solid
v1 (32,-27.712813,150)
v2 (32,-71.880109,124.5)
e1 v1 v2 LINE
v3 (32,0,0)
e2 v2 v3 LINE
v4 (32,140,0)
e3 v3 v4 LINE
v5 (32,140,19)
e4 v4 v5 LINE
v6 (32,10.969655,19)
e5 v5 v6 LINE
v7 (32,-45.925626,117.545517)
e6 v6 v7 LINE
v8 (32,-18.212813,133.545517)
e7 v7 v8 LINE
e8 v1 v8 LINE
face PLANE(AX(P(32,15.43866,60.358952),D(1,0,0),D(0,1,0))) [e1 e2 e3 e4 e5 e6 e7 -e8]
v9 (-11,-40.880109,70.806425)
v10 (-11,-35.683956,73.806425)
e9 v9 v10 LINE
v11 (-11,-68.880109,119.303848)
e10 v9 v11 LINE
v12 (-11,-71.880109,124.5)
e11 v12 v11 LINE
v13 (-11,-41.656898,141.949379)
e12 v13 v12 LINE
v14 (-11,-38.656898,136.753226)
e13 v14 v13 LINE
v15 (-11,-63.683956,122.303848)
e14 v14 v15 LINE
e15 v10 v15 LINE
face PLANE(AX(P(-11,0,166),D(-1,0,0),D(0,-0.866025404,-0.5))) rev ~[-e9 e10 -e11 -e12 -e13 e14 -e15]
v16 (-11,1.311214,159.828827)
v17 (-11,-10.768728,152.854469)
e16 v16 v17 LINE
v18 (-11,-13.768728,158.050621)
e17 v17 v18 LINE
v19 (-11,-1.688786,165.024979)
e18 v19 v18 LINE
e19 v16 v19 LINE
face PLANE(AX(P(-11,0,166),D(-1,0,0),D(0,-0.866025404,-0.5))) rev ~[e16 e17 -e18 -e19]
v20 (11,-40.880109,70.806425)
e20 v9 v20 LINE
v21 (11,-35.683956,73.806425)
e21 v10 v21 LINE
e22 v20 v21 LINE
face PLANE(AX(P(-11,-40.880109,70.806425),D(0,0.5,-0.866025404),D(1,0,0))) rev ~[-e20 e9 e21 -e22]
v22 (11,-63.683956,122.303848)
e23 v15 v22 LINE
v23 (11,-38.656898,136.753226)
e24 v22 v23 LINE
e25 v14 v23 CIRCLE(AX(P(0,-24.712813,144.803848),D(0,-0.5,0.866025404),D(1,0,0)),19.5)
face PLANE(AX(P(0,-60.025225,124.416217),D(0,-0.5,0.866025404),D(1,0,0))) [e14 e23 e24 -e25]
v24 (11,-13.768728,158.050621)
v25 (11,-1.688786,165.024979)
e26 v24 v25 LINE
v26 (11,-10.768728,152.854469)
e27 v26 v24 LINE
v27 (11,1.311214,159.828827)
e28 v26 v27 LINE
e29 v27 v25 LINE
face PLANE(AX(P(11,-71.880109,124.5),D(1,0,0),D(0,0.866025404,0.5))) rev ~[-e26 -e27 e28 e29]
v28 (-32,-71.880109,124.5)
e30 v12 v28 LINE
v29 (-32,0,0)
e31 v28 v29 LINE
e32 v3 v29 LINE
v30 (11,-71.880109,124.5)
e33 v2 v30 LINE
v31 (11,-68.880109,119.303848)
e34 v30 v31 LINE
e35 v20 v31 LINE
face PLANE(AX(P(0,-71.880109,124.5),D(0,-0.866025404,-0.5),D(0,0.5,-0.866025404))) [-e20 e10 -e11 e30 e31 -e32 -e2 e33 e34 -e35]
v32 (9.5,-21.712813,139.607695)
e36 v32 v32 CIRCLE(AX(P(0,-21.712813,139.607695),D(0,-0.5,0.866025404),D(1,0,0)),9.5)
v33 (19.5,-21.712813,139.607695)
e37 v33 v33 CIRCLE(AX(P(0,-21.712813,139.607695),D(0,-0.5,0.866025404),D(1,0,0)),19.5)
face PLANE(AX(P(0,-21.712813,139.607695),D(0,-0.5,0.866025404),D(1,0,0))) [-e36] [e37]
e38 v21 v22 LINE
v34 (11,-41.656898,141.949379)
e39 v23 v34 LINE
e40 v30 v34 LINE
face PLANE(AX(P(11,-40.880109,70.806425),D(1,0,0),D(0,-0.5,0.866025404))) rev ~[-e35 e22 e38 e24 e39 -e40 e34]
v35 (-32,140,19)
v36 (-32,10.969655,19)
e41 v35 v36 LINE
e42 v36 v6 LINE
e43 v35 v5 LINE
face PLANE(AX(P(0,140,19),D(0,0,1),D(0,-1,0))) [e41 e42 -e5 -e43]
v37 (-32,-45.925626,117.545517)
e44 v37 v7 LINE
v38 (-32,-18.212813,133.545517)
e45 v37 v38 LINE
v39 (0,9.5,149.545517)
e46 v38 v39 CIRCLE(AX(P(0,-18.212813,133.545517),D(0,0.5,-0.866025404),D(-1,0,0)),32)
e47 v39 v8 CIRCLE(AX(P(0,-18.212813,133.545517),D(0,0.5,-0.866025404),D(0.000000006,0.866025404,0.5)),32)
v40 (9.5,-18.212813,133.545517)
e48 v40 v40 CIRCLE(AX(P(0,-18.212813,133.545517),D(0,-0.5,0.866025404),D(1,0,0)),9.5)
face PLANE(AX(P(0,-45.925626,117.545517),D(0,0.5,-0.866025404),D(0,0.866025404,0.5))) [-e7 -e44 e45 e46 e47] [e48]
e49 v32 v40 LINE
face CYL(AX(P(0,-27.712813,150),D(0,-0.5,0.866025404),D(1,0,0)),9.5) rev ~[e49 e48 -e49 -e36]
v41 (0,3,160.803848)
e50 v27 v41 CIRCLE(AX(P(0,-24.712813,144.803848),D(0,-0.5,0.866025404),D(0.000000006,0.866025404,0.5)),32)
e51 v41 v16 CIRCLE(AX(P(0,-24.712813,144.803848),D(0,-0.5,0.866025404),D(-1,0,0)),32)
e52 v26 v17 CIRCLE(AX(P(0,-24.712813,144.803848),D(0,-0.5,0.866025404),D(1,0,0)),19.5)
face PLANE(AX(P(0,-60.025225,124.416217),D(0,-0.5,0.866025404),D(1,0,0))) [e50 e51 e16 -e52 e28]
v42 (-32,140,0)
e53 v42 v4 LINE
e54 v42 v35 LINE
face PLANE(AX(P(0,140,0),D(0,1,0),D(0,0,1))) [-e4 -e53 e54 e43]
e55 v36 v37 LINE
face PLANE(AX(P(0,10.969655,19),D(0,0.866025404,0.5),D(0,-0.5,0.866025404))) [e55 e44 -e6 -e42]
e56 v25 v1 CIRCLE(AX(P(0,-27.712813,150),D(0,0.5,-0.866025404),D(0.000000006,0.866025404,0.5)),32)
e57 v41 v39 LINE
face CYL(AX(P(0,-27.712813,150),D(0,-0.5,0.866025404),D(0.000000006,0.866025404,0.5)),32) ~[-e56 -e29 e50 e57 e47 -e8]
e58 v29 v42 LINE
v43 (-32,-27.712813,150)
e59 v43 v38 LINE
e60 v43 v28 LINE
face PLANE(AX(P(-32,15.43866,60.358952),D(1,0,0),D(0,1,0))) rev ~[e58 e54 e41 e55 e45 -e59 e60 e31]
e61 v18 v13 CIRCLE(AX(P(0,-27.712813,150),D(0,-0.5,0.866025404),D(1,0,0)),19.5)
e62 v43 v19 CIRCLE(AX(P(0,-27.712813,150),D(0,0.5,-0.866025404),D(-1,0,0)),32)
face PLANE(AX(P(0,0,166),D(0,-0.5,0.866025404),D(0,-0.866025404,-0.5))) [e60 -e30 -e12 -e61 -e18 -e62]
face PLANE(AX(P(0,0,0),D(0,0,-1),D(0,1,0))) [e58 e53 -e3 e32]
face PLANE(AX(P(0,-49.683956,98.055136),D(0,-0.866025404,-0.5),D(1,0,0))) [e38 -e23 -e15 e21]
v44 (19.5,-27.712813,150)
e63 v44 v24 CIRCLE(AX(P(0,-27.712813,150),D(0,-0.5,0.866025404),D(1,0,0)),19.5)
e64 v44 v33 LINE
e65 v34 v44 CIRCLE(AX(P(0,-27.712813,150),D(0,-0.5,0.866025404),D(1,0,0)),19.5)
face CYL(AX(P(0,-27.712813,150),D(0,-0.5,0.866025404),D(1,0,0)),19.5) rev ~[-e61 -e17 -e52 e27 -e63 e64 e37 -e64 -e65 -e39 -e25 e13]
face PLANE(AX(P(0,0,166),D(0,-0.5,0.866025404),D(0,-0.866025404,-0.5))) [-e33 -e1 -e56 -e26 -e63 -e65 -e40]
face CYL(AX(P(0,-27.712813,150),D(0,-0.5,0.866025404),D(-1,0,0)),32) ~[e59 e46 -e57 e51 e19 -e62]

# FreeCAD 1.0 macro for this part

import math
import FreeCAD as App
import Part
import Sketcher
from FreeCAD import Vector
Q = App.Units.Quantity

doc = App.newDocument("Part")
body = doc.addObject("PartDesign::Body", "Body")

# Sketch on YZ plane
sketch1 = body.newObject("Sketcher::SketchObject", "Sketch")
sketch1.AttachmentSupport = (doc.getObject("YZ_Plane"), [""])
sketch1.MapMode = "FlatFace"
sketch1.addGeometry([
    Part.LineSegment(Vector(0, 0, 0), Vector(140, 0, 0)),  # 0
    Part.LineSegment(Vector(140, 0, 0), Vector(140, 19, 0)),  # 1
    Part.LineSegment(Vector(140, 19, 0), Vector(10.969655, 19, 0)),  # 2
    Part.LineSegment(Vector(10.969655, 19, 0), Vector(-45.925626, 117.545517, 0)),  # 3
    Part.LineSegment(Vector(-45.925626, 117.545517, 0), Vector(9.5, 149.545517, 0)),  # 4
    Part.LineSegment(Vector(9.5, 149.545517, 0), Vector(0, 166, 0)),  # 5
    Part.LineSegment(Vector(0, 166, 0), Vector(-71.880109, 124.5, 0)),  # 6
    Part.LineSegment(Vector(-71.880109, 124.5, 0), Vector(0, 0, 0)),  # 7
], False)
sketch1.addConstraint([
    Sketcher.Constraint("Coincident", 0, 2, 1, 1),
    Sketcher.Constraint("Coincident", 1, 2, 2, 1),
    Sketcher.Constraint("Coincident", 2, 2, 3, 1),
    Sketcher.Constraint("Coincident", 3, 2, 4, 1),
    Sketcher.Constraint("Coincident", 4, 2, 5, 1),
    Sketcher.Constraint("Coincident", 5, 2, 6, 1),
    Sketcher.Constraint("Coincident", 6, 2, 7, 1),
    Sketcher.Constraint("Coincident", 7, 2, 0, 1),
    Sketcher.Constraint("Horizontal", 0),
    Sketcher.Constraint("Vertical", 1),
    Sketcher.Constraint("Horizontal", 2),
    Sketcher.Constraint("Coincident", 7, 2, -1, 1),
    Sketcher.Constraint("PointOnObject", 5, 2, -2),
    Sketcher.Constraint("Perpendicular", 3, 4),
    Sketcher.Constraint("Perpendicular", 4, 5),
    Sketcher.Constraint("Perpendicular", 5, 6),
    Sketcher.Constraint("Perpendicular", 6, 7),
    Sketcher.Constraint("DistanceX", 0, 1, 0, 2, Q("140 mm")),
    Sketcher.Constraint("DistanceY", 1, 1, 1, 2, Q("19 mm")),
    Sketcher.Constraint("Angle", 3, Q("120 deg")),
    Sketcher.Constraint("Distance", 4, Q("64 mm")),
    Sketcher.Constraint("Distance", 5, Q("19 mm")),
    Sketcher.Constraint("Distance", 6, Q("83 mm")),
])
pad1 = body.newObject("PartDesign::Pad", "Pad")
pad1.Profile = sketch1
pad1.Length = 64
pad1.Midplane = True

# Sketch on an angled plane
sketch2 = body.newObject("Sketcher::SketchObject", "Sketch001")
sketch2.Placement = App.Placement(Vector(0, -71.880109, 124.5), App.Rotation(Vector(1, 0, 0), Vector(0, 0.866025404, 0.5), Vector(0, -0.5, 0.866025404), "ZXY"))
sketch2.addGeometry([
    Part.ArcOfCircle(Part.Circle(Vector(0, 51, 0), Vector(0, 0, 1), 32), math.radians(0), math.radians(90)),  # 0
    Part.LineSegment(Vector(32, 51, 0), Vector(32, 83, 0)),  # 1
    Part.LineSegment(Vector(32, 83, 0), Vector(0, 83, 0)),  # 2
    Part.ArcOfCircle(Part.Circle(Vector(0, 51, 0), Vector(0, 0, 1), 32), math.radians(90), math.radians(180)),  # 3
    Part.LineSegment(Vector(0, 83, 0), Vector(-32, 83, 0)),  # 4
    Part.LineSegment(Vector(-32, 83, 0), Vector(-32, 51, 0)),  # 5
    Part.Circle(Vector(0, 51, 0), Vector(0, 0, 1), 9.5),  # 6
], False)
sketch2.addConstraint([
    Sketcher.Constraint("Tangent", 0, 1, 1, 1),
    Sketcher.Constraint("Coincident", 1, 2, 2, 1),
    Sketcher.Constraint("Tangent", 2, 2, 0, 2),
    Sketcher.Constraint("Tangent", 3, 1, 4, 1),
    Sketcher.Constraint("Coincident", 4, 2, 5, 1),
    Sketcher.Constraint("Tangent", 5, 2, 3, 2),
    Sketcher.Constraint("Vertical", 1),
    Sketcher.Constraint("Horizontal", 2),
    Sketcher.Constraint("Horizontal", 4),
    Sketcher.Constraint("Vertical", 5),
    Sketcher.Constraint("Coincident", 3, 3, 0, 3),
    Sketcher.Constraint("Coincident", 6, 3, 0, 3),
    Sketcher.Constraint("Equal", 0, 3),
    Sketcher.Constraint("PointOnObject", 0, 3, -2),
    Sketcher.Constraint("Diameter", 6, Q("19 mm")),
    Sketcher.Constraint("Radius", 0, Q("32 mm")),
    Sketcher.Constraint("DistanceY", -1, 1, 0, 3, Q("51 mm")),
])
pocket1 = body.newObject("PartDesign::Pocket", "Pocket")
pocket1.Profile = sketch2
pocket1.Length = 19

# Sketch on an angled plane
sketch3 = body.newObject("Sketcher::SketchObject", "Sketch002")
sketch3.Placement = App.Placement(Vector(0, -71.880109, 124.5), App.Rotation(Vector(1, 0, 0), Vector(0, 0.866025404, 0.5), Vector(0, -0.5, 0.866025404), "ZXY"))
sketch3.addGeometry([
    Part.Circle(Vector(0, 51, 0), Vector(0, 0, 1), 19.5),
    Part.Circle(Vector(0, 51, 0), Vector(0, 0, 1), 9.5),
], False)
sketch3.addConstraint([
    Sketcher.Constraint("Coincident", 1, 3, 0, 3),
    Sketcher.Constraint("PointOnObject", 0, 3, -2),
    Sketcher.Constraint("Diameter", 0, Q("39 mm")),
    Sketcher.Constraint("Diameter", 1, Q("19 mm")),
    Sketcher.Constraint("DistanceY", -1, 1, 0, 3, Q("51 mm")),
])
pocket2 = body.newObject("PartDesign::Pocket", "Pocket001")
pocket2.Profile = sketch3
pocket2.Length = 12

# Sketch on an angled plane
sketch4 = body.newObject("Sketcher::SketchObject", "Sketch003")
sketch4.Placement = App.Placement(Vector(0, -71.880109, 124.5), App.Rotation(Vector(1, 0, 0), Vector(0, 0.866025404, 0.5), Vector(0, -0.5, 0.866025404), "ZXY"))
sketch4.addGeometry([
    Part.LineSegment(Vector(-11, 0, 0), Vector(11, 0, 0)),
    Part.LineSegment(Vector(11, 0, 0), Vector(11, 83, 0)),
    Part.LineSegment(Vector(11, 83, 0), Vector(-11, 83, 0)),
    Part.LineSegment(Vector(-11, 83, 0), Vector(-11, 0, 0)),
], False)
sketch4.addConstraint([
    Sketcher.Constraint("Coincident", 0, 2, 1, 1),
    Sketcher.Constraint("Coincident", 1, 2, 2, 1),
    Sketcher.Constraint("Coincident", 2, 2, 3, 1),
    Sketcher.Constraint("Coincident", 3, 2, 0, 1),
    Sketcher.Constraint("Horizontal", 0),
    Sketcher.Constraint("Vertical", 1),
    Sketcher.Constraint("Horizontal", 2),
    Sketcher.Constraint("Vertical", 3),
    Sketcher.Constraint("Symmetric", 0, 2, 3, 2, -1, 1),
    Sketcher.Constraint("DistanceX", 0, 1, 0, 2, Q("22 mm")),
    Sketcher.Constraint("DistanceY", 1, 1, 1, 2, Q("83 mm")),
])
pocket3 = body.newObject("PartDesign::Pocket", "Pocket002")
pocket3.Profile = sketch4
pocket3.Length = 6

# Sketch on an angled plane
sketch5 = body.newObject("Sketcher::SketchObject", "Sketch004")
sketch5.Placement = App.Placement(Vector(0, 0, 0), App.Rotation(Vector(1, 0, 0), Vector(0, -0.5, 0.866025404), Vector(0, -0.866025404, -0.5), "ZXY"))
sketch5.addGeometry([
    Part.LineSegment(Vector(-11, 137.760217, 0), Vector(-11, 81.760217, 0)),
    Part.LineSegment(Vector(-11, 81.760217, 0), Vector(11, 81.760217, 0)),
    Part.LineSegment(Vector(11, 81.760217, 0), Vector(11, 137.760217, 0)),
    Part.LineSegment(Vector(11, 137.760217, 0), Vector(-11, 137.760217, 0)),
], False)
sketch5.addConstraint([
    Sketcher.Constraint("Coincident", 0, 2, 1, 1),
    Sketcher.Constraint("Coincident", 1, 2, 2, 1),
    Sketcher.Constraint("Coincident", 2, 2, 3, 1),
    Sketcher.Constraint("Coincident", 3, 2, 0, 1),
    Sketcher.Constraint("Vertical", 0),
    Sketcher.Constraint("Horizontal", 1),
    Sketcher.Constraint("Vertical", 2),
    Sketcher.Constraint("Horizontal", 3),
    Sketcher.Constraint("DistanceX", 1, 1, 1, 2, Q("22 mm")),
    Sketcher.Constraint("DistanceY", 0, 2, 0, 1, Q("56 mm")),
    Sketcher.Constraint("DistanceX", 0, 2, -1, 1, Q("11 mm")),
    Sketcher.Constraint("DistanceY", -1, 1, 0, 2, Q("81.760217 mm")),
])
pocket4 = body.newObject("PartDesign::Pocket", "Pocket003")
pocket4.Profile = sketch5
pocket4.Length = 6

doc.recompute()
